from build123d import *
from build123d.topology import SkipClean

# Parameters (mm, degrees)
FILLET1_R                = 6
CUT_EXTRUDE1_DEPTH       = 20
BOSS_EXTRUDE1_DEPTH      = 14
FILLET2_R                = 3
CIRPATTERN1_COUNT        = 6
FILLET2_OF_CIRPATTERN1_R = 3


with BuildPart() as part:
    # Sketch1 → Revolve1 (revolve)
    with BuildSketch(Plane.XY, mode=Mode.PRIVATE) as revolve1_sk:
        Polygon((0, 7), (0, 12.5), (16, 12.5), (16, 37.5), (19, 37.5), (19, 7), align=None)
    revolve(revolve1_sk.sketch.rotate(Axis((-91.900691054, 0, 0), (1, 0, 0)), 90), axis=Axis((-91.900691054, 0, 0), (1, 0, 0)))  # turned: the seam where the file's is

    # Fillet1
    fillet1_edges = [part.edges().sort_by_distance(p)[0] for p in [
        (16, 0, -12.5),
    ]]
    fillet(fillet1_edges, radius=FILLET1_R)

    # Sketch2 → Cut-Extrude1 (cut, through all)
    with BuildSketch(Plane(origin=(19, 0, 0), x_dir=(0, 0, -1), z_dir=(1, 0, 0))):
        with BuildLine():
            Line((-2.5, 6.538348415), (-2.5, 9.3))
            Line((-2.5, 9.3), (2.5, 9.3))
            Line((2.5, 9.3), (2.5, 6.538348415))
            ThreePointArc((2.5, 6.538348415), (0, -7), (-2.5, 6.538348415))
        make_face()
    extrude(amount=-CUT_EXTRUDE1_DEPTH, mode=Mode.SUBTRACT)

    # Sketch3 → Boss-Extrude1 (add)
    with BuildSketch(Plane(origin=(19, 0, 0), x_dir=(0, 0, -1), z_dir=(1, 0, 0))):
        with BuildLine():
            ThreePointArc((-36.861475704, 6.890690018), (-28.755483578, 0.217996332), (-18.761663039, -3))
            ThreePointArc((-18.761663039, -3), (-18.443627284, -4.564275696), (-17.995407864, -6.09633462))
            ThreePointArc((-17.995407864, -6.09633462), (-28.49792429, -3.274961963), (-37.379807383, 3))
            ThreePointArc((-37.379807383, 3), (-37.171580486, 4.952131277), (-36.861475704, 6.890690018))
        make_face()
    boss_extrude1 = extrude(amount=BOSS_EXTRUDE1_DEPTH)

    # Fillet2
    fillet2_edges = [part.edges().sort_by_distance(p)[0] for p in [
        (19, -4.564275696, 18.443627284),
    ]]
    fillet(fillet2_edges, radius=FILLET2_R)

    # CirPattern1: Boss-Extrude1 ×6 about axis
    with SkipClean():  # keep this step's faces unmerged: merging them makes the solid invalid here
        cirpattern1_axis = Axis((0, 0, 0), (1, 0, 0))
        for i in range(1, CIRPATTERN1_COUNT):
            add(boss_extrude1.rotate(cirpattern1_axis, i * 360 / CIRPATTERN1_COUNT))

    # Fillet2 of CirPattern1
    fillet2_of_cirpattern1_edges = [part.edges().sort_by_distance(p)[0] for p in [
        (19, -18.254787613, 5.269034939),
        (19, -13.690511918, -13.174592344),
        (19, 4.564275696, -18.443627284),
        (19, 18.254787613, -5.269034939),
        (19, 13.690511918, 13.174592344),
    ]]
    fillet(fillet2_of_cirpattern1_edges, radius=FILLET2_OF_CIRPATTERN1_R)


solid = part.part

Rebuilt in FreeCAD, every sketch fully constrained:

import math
import FreeCAD as App
import Part
import Sketcher
from FreeCAD import Vector


def edges_at(feature, points):
    """Names of the edges that pass closest to the given points."""
    edges = feature.Shape.Edges
    near = lambda p: min(range(len(edges)), key=lambda i: edges[i].distToShape(Part.Vertex(*p))[0])
    return sorted({f"Edge{near(p) + 1}" for p in points})

doc = App.newDocument("Part")
params = doc.addObject("Spreadsheet::Sheet", "Params")
for row, (alias, value) in enumerate([
    ("sketch1_width", "19 mm"),
    ("sketch1_width2", "3 mm"),
    ("sketch1_height", "25 mm"),
    ("sketch1_height2", "5.5 mm"),
    ("revolution_angle", "360 deg"),
    ("fillet_radius", "6 mm"),
    ("sketch2_radius", "7 mm"),
    ("sketch2_height", "5 mm"),
    ("sketch3_radius", "28 mm"),
    ("sketch3_radius2", "31 mm"),
    ("sketch3_radius3", "19 mm"),
    ("sketch3_radius4", "37.5 mm"),
    ("pad1_length", "14 mm"),
    ("fillet2_radius", "3 mm"),
    ("fillet3_radius", "3 mm"),
], start=1):
    params.set(f"A{row}", alias)
    params.set(f"B{row}", "=" + value)
    params.setAlias(f"B{row}", alias)

body = doc.addObject("PartDesign::Body", "Body")

# Sketch on XY plane
sketch1 = doc.addObject("Sketcher::SketchObject", "Sketch")
body.addObject(sketch1)
sketch1.AttachmentSupport = (doc.XY_Plane, [""])
sketch1.MapMode = "FlatFace"
sketch1.addGeometry([
    Part.LineSegment(Vector(0, 12.5, 0), Vector(0, 7, 0)),  # 0
    Part.LineSegment(Vector(0, 7, 0), Vector(19, 7, 0)),  # 1
    Part.LineSegment(Vector(19, 7, 0), Vector(19, 37.5, 0)),  # 2
    Part.LineSegment(Vector(19, 37.5, 0), Vector(16, 37.5, 0)),  # 3
    Part.LineSegment(Vector(16, 37.5, 0), Vector(16, 12.5, 0)),  # 4
    Part.LineSegment(Vector(16, 12.5, 0), Vector(0, 12.5, 0)),  # 5
], False)
sketch1.addConstraint([
    Sketcher.Constraint("Coincident", 0, 2, 1, 1),
    Sketcher.Constraint("Coincident", 1, 2, 2, 1),
    Sketcher.Constraint("Coincident", 2, 2, 3, 1),
    Sketcher.Constraint("Coincident", 3, 2, 4, 1),
    Sketcher.Constraint("Coincident", 4, 2, 5, 1),
    Sketcher.Constraint("Coincident", 5, 2, 0, 1),
    Sketcher.Constraint("Vertical", 0),
    Sketcher.Constraint("Horizontal", 1),
    Sketcher.Constraint("Vertical", 2),
    Sketcher.Constraint("Horizontal", 3),
    Sketcher.Constraint("Vertical", 4),
    Sketcher.Constraint("Horizontal", 5),
    Sketcher.Constraint("PointOnObject", 0, 2, -2),
    Sketcher.Constraint("DistanceX", 1, 1, 1, 2, 19.0),
    Sketcher.Constraint("DistanceX", 3, 2, 3, 1, 3.0),
    Sketcher.Constraint("DistanceY", 4, 2, 4, 1, 25.0),
    Sketcher.Constraint("DistanceY", 0, 2, 0, 1, 5.5),
    Sketcher.Constraint("DistanceY", -1, 1, 0, 2, 7.0),
])
sketch1.setExpression("Constraints[13]", "Params.sketch1_width")
sketch1.setExpression("Constraints[14]", "Params.sketch1_width2")
sketch1.setExpression("Constraints[15]", "Params.sketch1_height")
sketch1.setExpression("Constraints[16]", "Params.sketch1_height2")
revolution = doc.addObject("PartDesign::Revolution", "Revolution")
body.addObject(revolution)
revolution.Profile = sketch1
revolution.ReferenceAxis = (sketch1, ["H_Axis"])
revolution.setExpression("Angle", "Params.revolution_angle")
doc.recompute()

fillet = doc.addObject("PartDesign::Fillet", "Fillet")
body.addObject(fillet)
fillet.Base = (revolution, edges_at(revolution, [(16, 0, -12.5)]))
fillet.setExpression("Radius", "Params.fillet_radius")

# Sketch on YZ plane
sketch2 = doc.addObject("Sketcher::SketchObject", "Sketch001")
body.addObject(sketch2)
sketch2.AttachmentSupport = (doc.YZ_Plane, [""])
sketch2.MapMode = "FlatFace"
sketch2.AttachmentOffset = App.Placement(Vector(0, 0, 19), App.Rotation())
sketch2.addGeometry([
    Part.LineSegment(Vector(9.3, 2.5, 0), Vector(6.5, 2.5, 0)),
    Part.ArcOfCircle(Part.Circle(Vector(0, 0, 0), Vector(0, 0, 1), 7), math.radians(21), math.radians(339)),
    Part.LineSegment(Vector(6.5, -2.5, 0), Vector(9.3, -2.5, 0)),
    Part.LineSegment(Vector(9.3, -2.5, 0), Vector(9.3, 2.5, 0)),
], False)
sketch2.addConstraint([
    Sketcher.Constraint("Coincident", 0, 2, 1, 1),
    Sketcher.Constraint("Coincident", 1, 2, 2, 1),
    Sketcher.Constraint("Coincident", 2, 2, 3, 1),
    Sketcher.Constraint("Coincident", 3, 2, 0, 1),
    Sketcher.Constraint("Horizontal", 0),
    Sketcher.Constraint("Horizontal", 2),
    Sketcher.Constraint("Vertical", 3),
    Sketcher.Constraint("Coincident", 1, 3, -1, 1),
    Sketcher.Constraint("Vertical", 0, 2, 1, 2),
    Sketcher.Constraint("Radius", 1, 7.0),
    Sketcher.Constraint("DistanceY", 3, 1, 3, 2, 5.0),
    Sketcher.Constraint("DistanceX", -1, 1, 2, 2, 9.3),
])
sketch2.setExpression("Constraints[9]", "Params.sketch2_radius")
sketch2.setExpression("Constraints[10]", "Params.sketch2_height")
pocket1 = doc.addObject("PartDesign::Pocket", "Pocket")
body.addObject(pocket1)
pocket1.Profile = sketch2
pocket1.Type = "ThroughAll"

# Sketch on YZ plane
sketch3 = doc.addObject("Sketcher::SketchObject", "Sketch002")
body.addObject(sketch3)
sketch3.AttachmentSupport = (doc.YZ_Plane, [""])
sketch3.MapMode = "FlatFace"
sketch3.AttachmentOffset = App.Placement(Vector(0, 0, 19), App.Rotation())
sketch3.addGeometry([
    Part.ArcOfCircle(Part.Circle(Vector(24.8, 15.3, 0), Vector(0, 0, 1), 28), math.radians(130), math.radians(173)),
    Part.ArcOfCircle(Part.Circle(Vector(0, 0, 0), Vector(0, 0, 1), 37.5), math.radians(79.41), math.radians(85.41)),
    Part.ArcOfCircle(Part.Circle(Vector(24.8, 15.3, 0), Vector(0, 0, 1), 31), math.radians(135), math.radians(175)),
    Part.ArcOfCircle(Part.Circle(Vector(0, 0, 0), Vector(0, 0, 1), 19), math.radians(99.08), math.radians(108.71)),
], False)
sketch3.addConstraint([
    Sketcher.Constraint("Coincident", 0, 1, 1, 1),
    Sketcher.Constraint("Coincident", 1, 2, 2, 1),
    Sketcher.Constraint("Coincident", 2, 2, 3, 2),
    Sketcher.Constraint("Coincident", 3, 1, 0, 2),
    Sketcher.Constraint("Coincident", 1, 3, -1, 1),
    Sketcher.Constraint("Coincident", 3, 3, -1, 1),
    Sketcher.Constraint("Coincident", 2, 3, 0, 3),
    Sketcher.Constraint("Radius", 0, 28.0),
    Sketcher.Constraint("Radius", 2, 31.0),
    Sketcher.Constraint("Radius", 3, 19.0),
    Sketcher.Constraint("Radius", 1, 37.5),
    Sketcher.Constraint("DistanceX", -1, 1, 1, 2, 3.0),
    Sketcher.Constraint("DistanceX", 3, 1, -1, 1, 3.0),
])
sketch3.setExpression("Constraints[7]", "Params.sketch3_radius")
sketch3.setExpression("Constraints[8]", "Params.sketch3_radius2")
sketch3.setExpression("Constraints[9]", "Params.sketch3_radius3")
sketch3.setExpression("Constraints[10]", "Params.sketch3_radius4")
pad1 = doc.addObject("PartDesign::Pad", "Pad")
body.addObject(pad1)
pad1.Profile = sketch3
pad1.setExpression("Length", "Params.pad1_length")
doc.recompute()

fillet2 = doc.addObject("PartDesign::Fillet", "Fillet001")
body.addObject(fillet2)
fillet2.Base = (pad1, edges_at(pad1, [(19, -4.564, 18.444)]))
fillet2.setExpression("Radius", "Params.fillet2_radius")
doc.recompute()

polarpattern = doc.addObject("PartDesign::PolarPattern", "PolarPattern")
body.addObject(polarpattern)
polarpattern.Originals = [pad1]
polarpattern.Axis = (doc.X_Axis, [""])
polarpattern.Angle = 360
polarpattern.Occurrences = 6
body.Tip = polarpattern
doc.recompute()

fillet3 = doc.addObject("PartDesign::Fillet", "Fillet002")
body.addObject(fillet3)
fillet3.Base = (polarpattern, edges_at(polarpattern, [
    (19, -18.255, 5.269),
    (19, -13.691, -13.175),
    (19, 4.564, -18.444),
    (19, 18.255, -5.269),
    (19, 13.691, 13.175),
]))
fillet3.setExpression("Radius", "Params.fillet3_radius")

doc.recompute()
